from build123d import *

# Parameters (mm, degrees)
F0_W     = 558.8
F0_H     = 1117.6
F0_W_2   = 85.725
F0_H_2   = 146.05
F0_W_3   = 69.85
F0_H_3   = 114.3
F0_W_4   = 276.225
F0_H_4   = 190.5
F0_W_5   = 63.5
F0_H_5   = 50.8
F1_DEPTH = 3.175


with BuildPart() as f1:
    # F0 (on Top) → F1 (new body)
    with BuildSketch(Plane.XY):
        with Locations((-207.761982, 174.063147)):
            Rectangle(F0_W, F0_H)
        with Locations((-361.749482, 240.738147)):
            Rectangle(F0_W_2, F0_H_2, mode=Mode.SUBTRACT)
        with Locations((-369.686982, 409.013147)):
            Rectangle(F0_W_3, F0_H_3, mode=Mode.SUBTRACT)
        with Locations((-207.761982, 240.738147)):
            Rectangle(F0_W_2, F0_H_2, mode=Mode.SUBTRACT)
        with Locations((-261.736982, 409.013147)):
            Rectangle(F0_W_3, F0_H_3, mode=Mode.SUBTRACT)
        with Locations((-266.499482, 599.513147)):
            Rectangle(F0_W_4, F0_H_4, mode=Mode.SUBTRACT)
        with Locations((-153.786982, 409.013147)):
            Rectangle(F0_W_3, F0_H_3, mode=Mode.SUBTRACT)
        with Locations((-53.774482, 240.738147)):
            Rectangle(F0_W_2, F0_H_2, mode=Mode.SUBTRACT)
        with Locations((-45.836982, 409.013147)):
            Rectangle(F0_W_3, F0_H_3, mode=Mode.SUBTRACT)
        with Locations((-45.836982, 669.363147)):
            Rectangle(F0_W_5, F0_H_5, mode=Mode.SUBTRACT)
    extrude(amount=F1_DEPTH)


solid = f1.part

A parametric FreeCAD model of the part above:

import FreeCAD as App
import Part
import Sketcher

V = App.Vector
Q = App.Units.Quantity

doc = App.newDocument("Part")
body = doc.addObject("PartDesign::Body", "Body")

# Sketch on XY plane
sketch1 = doc.addObject("Sketcher::SketchObject", "Sketch")
body.addObject(sketch1)
sketch1.AttachmentSupport = (doc.XY_Plane, [""])
sketch1.MapMode = "FlatFace"
sketch1.addGeometry(Part.LineSegment(V(-487, 733, 0), V(-487, -385, 0)), False)
sketch1.addGeometry(Part.LineSegment(V(-487, -385, 0), V(72, -385, 0)), False)
sketch1.addGeometry(Part.LineSegment(V(72, -385, 0), V(72, 733, 0)), False)
sketch1.addGeometry(Part.LineSegment(V(72, 733, 0), V(-487, 733, 0)), False)
sketch1.addGeometry(Part.LineSegment(V(-319, 168, 0), V(-405, 168, 0)), False)
sketch1.addGeometry(Part.LineSegment(V(-405, 168, 0), V(-405, 314, 0)), False)
sketch1.addGeometry(Part.LineSegment(V(-405, 314, 0), V(-319, 314, 0)), False)
sketch1.addGeometry(Part.LineSegment(V(-319, 314, 0), V(-319, 168, 0)), False)
sketch1.addGeometry(Part.LineSegment(V(-335, 352, 0), V(-405, 352, 0)), False)
sketch1.addGeometry(Part.LineSegment(V(-405, 352, 0), V(-405, 466, 0)), False)
sketch1.addGeometry(Part.LineSegment(V(-405, 466, 0), V(-335, 466, 0)), False)
sketch1.addGeometry(Part.LineSegment(V(-335, 466, 0), V(-335, 352, 0)), False)
sketch1.addGeometry(Part.LineSegment(V(-227, 352, 0), V(-297, 352, 0)), False)
sketch1.addGeometry(Part.LineSegment(V(-297, 352, 0), V(-297, 466, 0)), False)
sketch1.addGeometry(Part.LineSegment(V(-297, 466, 0), V(-227, 466, 0)), False)
sketch1.addGeometry(Part.LineSegment(V(-227, 466, 0), V(-227, 352, 0)), False)
sketch1.addGeometry(Part.LineSegment(V(-165, 168, 0), V(-251, 168, 0)), False)
sketch1.addGeometry(Part.LineSegment(V(-251, 168, 0), V(-251, 314, 0)), False)
sketch1.addGeometry(Part.LineSegment(V(-251, 314, 0), V(-165, 314, 0)), False)
sketch1.addGeometry(Part.LineSegment(V(-165, 314, 0), V(-165, 168, 0)), False)
sketch1.addGeometry(Part.LineSegment(V(-11, 168, 0), V(-97, 168, 0)), False)
sketch1.addGeometry(Part.LineSegment(V(-97, 168, 0), V(-97, 314, 0)), False)
sketch1.addGeometry(Part.LineSegment(V(-97, 314, 0), V(-11, 314, 0)), False)
sketch1.addGeometry(Part.LineSegment(V(-11, 314, 0), V(-11, 168, 0)), False)
sketch1.addGeometry(Part.LineSegment(V(-119, 352, 0), V(-189, 352, 0)), False)
sketch1.addGeometry(Part.LineSegment(V(-189, 352, 0), V(-189, 466, 0)), False)
sketch1.addGeometry(Part.LineSegment(V(-189, 466, 0), V(-119, 466, 0)), False)
sketch1.addGeometry(Part.LineSegment(V(-119, 466, 0), V(-119, 352, 0)), False)
sketch1.addGeometry(Part.LineSegment(V(-11, 352, 0), V(-81, 352, 0)), False)
sketch1.addGeometry(Part.LineSegment(V(-81, 352, 0), V(-81, 466, 0)), False)
sketch1.addGeometry(Part.LineSegment(V(-81, 466, 0), V(-11, 466, 0)), False)
sketch1.addGeometry(Part.LineSegment(V(-11, 466, 0), V(-11, 352, 0)), False)
sketch1.addGeometry(Part.LineSegment(V(-128, 504, 0), V(-405, 504, 0)), False)
sketch1.addGeometry(Part.LineSegment(V(-405, 504, 0), V(-405, 695, 0)), False)
sketch1.addGeometry(Part.LineSegment(V(-405, 695, 0), V(-128, 695, 0)), False)
sketch1.addGeometry(Part.LineSegment(V(-128, 695, 0), V(-128, 504, 0)), False)
sketch1.addGeometry(Part.LineSegment(V(-14, 644, 0), V(-78, 644, 0)), False)
sketch1.addGeometry(Part.LineSegment(V(-78, 644, 0), V(-78, 695, 0)), False)
sketch1.addGeometry(Part.LineSegment(V(-78, 695, 0), V(-14, 695, 0)), False)
sketch1.addGeometry(Part.LineSegment(V(-14, 695, 0), V(-14, 644, 0)), False)
sketch1.addConstraint(Sketcher.Constraint("Coincident", 0, 2, 1, 1))
sketch1.addConstraint(Sketcher.Constraint("Coincident", 1, 2, 2, 1))
sketch1.addConstraint(Sketcher.Constraint("Coincident", 2, 2, 3, 1))
sketch1.addConstraint(Sketcher.Constraint("Coincident", 3, 2, 0, 1))
sketch1.addConstraint(Sketcher.Constraint("Coincident", 4, 2, 5, 1))
sketch1.addConstraint(Sketcher.Constraint("Coincident", 5, 2, 6, 1))
sketch1.addConstraint(Sketcher.Constraint("Coincident", 6, 2, 7, 1))
sketch1.addConstraint(Sketcher.Constraint("Coincident", 7, 2, 4, 1))
sketch1.addConstraint(Sketcher.Constraint("Coincident", 8, 2, 9, 1))
sketch1.addConstraint(Sketcher.Constraint("Coincident", 9, 2, 10, 1))
sketch1.addConstraint(Sketcher.Constraint("Coincident", 10, 2, 11, 1))
sketch1.addConstraint(Sketcher.Constraint("Coincident", 11, 2, 8, 1))
sketch1.addConstraint(Sketcher.Constraint("Coincident", 12, 2, 13, 1))
sketch1.addConstraint(Sketcher.Constraint("Coincident", 13, 2, 14, 1))
sketch1.addConstraint(Sketcher.Constraint("Coincident", 14, 2, 15, 1))
sketch1.addConstraint(Sketcher.Constraint("Coincident", 15, 2, 12, 1))
sketch1.addConstraint(Sketcher.Constraint("Coincident", 16, 2, 17, 1))
sketch1.addConstraint(Sketcher.Constraint("Coincident", 17, 2, 18, 1))
sketch1.addConstraint(Sketcher.Constraint("Coincident", 18, 2, 19, 1))
sketch1.addConstraint(Sketcher.Constraint("Coincident", 19, 2, 16, 1))
sketch1.addConstraint(Sketcher.Constraint("Coincident", 20, 2, 21, 1))
sketch1.addConstraint(Sketcher.Constraint("Coincident", 21, 2, 22, 1))
sketch1.addConstraint(Sketcher.Constraint("Coincident", 22, 2, 23, 1))
sketch1.addConstraint(Sketcher.Constraint("Coincident", 23, 2, 20, 1))
sketch1.addConstraint(Sketcher.Constraint("Coincident", 24, 2, 25, 1))
sketch1.addConstraint(Sketcher.Constraint("Coincident", 25, 2, 26, 1))
sketch1.addConstraint(Sketcher.Constraint("Coincident", 26, 2, 27, 1))
sketch1.addConstraint(Sketcher.Constraint("Coincident", 27, 2, 24, 1))
sketch1.addConstraint(Sketcher.Constraint("Coincident", 28, 2, 29, 1))
sketch1.addConstraint(Sketcher.Constraint("Coincident", 29, 2, 30, 1))
sketch1.addConstraint(Sketcher.Constraint("Coincident", 30, 2, 31, 1))
sketch1.addConstraint(Sketcher.Constraint("Coincident", 31, 2, 28, 1))
sketch1.addConstraint(Sketcher.Constraint("Coincident", 32, 2, 33, 1))
sketch1.addConstraint(Sketcher.Constraint("Coincident", 33, 2, 34, 1))
sketch1.addConstraint(Sketcher.Constraint("Coincident", 34, 2, 35, 1))
sketch1.addConstraint(Sketcher.Constraint("Coincident", 35, 2, 32, 1))
sketch1.addConstraint(Sketcher.Constraint("Coincident", 36, 2, 37, 1))
sketch1.addConstraint(Sketcher.Constraint("Coincident", 37, 2, 38, 1))
sketch1.addConstraint(Sketcher.Constraint("Coincident", 38, 2, 39, 1))
sketch1.addConstraint(Sketcher.Constraint("Coincident", 39, 2, 36, 1))
sketch1.addConstraint(Sketcher.Constraint("Vertical", 0))
sketch1.addConstraint(Sketcher.Constraint("Horizontal", 1))
sketch1.addConstraint(Sketcher.Constraint("Vertical", 2))
sketch1.addConstraint(Sketcher.Constraint("Horizontal", 3))
sketch1.addConstraint(Sketcher.Constraint("Horizontal", 4))
sketch1.addConstraint(Sketcher.Constraint("Vertical", 5))
sketch1.addConstraint(Sketcher.Constraint("Horizontal", 6))
sketch1.addConstraint(Sketcher.Constraint("Vertical", 7))
sketch1.addConstraint(Sketcher.Constraint("Horizontal", 8))
sketch1.addConstraint(Sketcher.Constraint("Vertical", 9))
sketch1.addConstraint(Sketcher.Constraint("Horizontal", 10))
sketch1.addConstraint(Sketcher.Constraint("Vertical", 11))
sketch1.addConstraint(Sketcher.Constraint("Horizontal", 12))
sketch1.addConstraint(Sketcher.Constraint("Vertical", 13))
sketch1.addConstraint(Sketcher.Constraint("Horizontal", 14))
sketch1.addConstraint(Sketcher.Constraint("Vertical", 15))
sketch1.addConstraint(Sketcher.Constraint("Horizontal", 16))
sketch1.addConstraint(Sketcher.Constraint("Vertical", 17))
sketch1.addConstraint(Sketcher.Constraint("Horizontal", 18))
sketch1.addConstraint(Sketcher.Constraint("Vertical", 19))
sketch1.addConstraint(Sketcher.Constraint("Horizontal", 20))
sketch1.addConstraint(Sketcher.Constraint("Vertical", 21))
sketch1.addConstraint(Sketcher.Constraint("Horizontal", 22))
sketch1.addConstraint(Sketcher.Constraint("Vertical", 23))
sketch1.addConstraint(Sketcher.Constraint("Horizontal", 24))
sketch1.addConstraint(Sketcher.Constraint("Vertical", 25))
sketch1.addConstraint(Sketcher.Constraint("Horizontal", 26))
sketch1.addConstraint(Sketcher.Constraint("Vertical", 27))
sketch1.addConstraint(Sketcher.Constraint("Horizontal", 28))
sketch1.addConstraint(Sketcher.Constraint("Vertical", 29))
sketch1.addConstraint(Sketcher.Constraint("Horizontal", 30))
sketch1.addConstraint(Sketcher.Constraint("Vertical", 31))
sketch1.addConstraint(Sketcher.Constraint("Horizontal", 32))
sketch1.addConstraint(Sketcher.Constraint("Vertical", 33))
sketch1.addConstraint(Sketcher.Constraint("Horizontal", 34))
sketch1.addConstraint(Sketcher.Constraint("Vertical", 35))
sketch1.addConstraint(Sketcher.Constraint("Horizontal", 36))
sketch1.addConstraint(Sketcher.Constraint("Vertical", 37))
sketch1.addConstraint(Sketcher.Constraint("Horizontal", 38))
sketch1.addConstraint(Sketcher.Constraint("Vertical", 39))
sketch1.addConstraint(Sketcher.Constraint("Horizontal", 11, 2, 12, 2))
sketch1.addConstraint(Sketcher.Constraint("Horizontal", 10, 2, 13, 2))
sketch1.addConstraint(Sketcher.Constraint("Horizontal", 7, 2, 16, 2))
sketch1.addConstraint(Sketcher.Constraint("Horizontal", 6, 2, 17, 2))
sketch1.addConstraint(Sketcher.Constraint("Horizontal", 19, 2, 20, 2))
sketch1.addConstraint(Sketcher.Constraint("Horizontal", 18, 2, 21, 2))
sketch1.addConstraint(Sketcher.Constraint("Horizontal", 15, 2, 24, 2))
sketch1.addConstraint(Sketcher.Constraint("Horizontal", 14, 2, 25, 2))
sketch1.addConstraint(Sketcher.Constraint("Horizontal", 27, 2, 28, 2))
sketch1.addConstraint(Sketcher.Constraint("Horizontal", 26, 2, 29, 2))
sketch1.addConstraint(Sketcher.Constraint("Horizontal", 34, 2, 37, 2))
sketch1.addConstraint(Sketcher.Constraint("Vertical", 5, 2, 8, 2))
sketch1.addConstraint(Sketcher.Constraint("Vertical", 23, 2, 30, 2))
sketch1.addConstraint(Sketcher.Constraint("Vertical", 9, 2, 32, 2))
sketch1.addConstraint(Sketcher.Constraint("Equal", 10, 12))
sketch1.addConstraint(Sketcher.Constraint("Equal", 6, 16))
sketch1.addConstraint(Sketcher.Constraint("Equal", 18, 20))
sketch1.addConstraint(Sketcher.Constraint("Equal", 14, 24))
sketch1.addConstraint(Sketcher.Constraint("Equal", 26, 28))
sketch1.addConstraint(Sketcher.Constraint("DistanceX", 1, 1, 1, 2, Q("22 in")))
sketch1.addConstraint(Sketcher.Constraint("DistanceY", 0, 2, 0, 1, Q("44 in")))
sketch1.addConstraint(Sketcher.Constraint("DistanceY", 37, 1, 37, 2, Q("2 in")))
sketch1.addConstraint(Sketcher.Constraint("DistanceX", 36, 2, 36, 1, Q("2.5 in")))
sketch1.addConstraint(Sketcher.Constraint("DistanceY", 9, 1, 9, 2, Q("4.5 in")))
sketch1.addConstraint(Sketcher.Constraint("DistanceY", 33, 1, 33, 2, Q("7.5 in")))
sketch1.addConstraint(Sketcher.Constraint("DistanceY", 8, 2, 3, 2, Q("15 in")))
sketch1.addConstraint(Sketcher.Constraint("DistanceY", 5, 2, 9, 2, Q("6 in")))
sketch1.addConstraint(Sketcher.Constraint("DistanceX", 9, 2, 14, 2, Q("7 in")))
sketch1.addConstraint(Sketcher.Constraint("DistanceY", 8, 2, 32, 2, Q("6 in")))
sketch1.addConstraint(Sketcher.Constraint("DistanceX", 34, 2, 36, 2, Q("2 in")))
sketch1.addConstraint(Sketcher.Constraint("DistanceX", 8, 2, 8, 1, Q("2.75 in")))
sketch1.addConstraint(Sketcher.Constraint("DistanceY", 5, 1, 5, 2, Q("5.75 in")))
sketch1.addConstraint(Sketcher.Constraint("DistanceX", 15, 2, 22, 2, Q("8.5 in")))
sketch1.addConstraint(Sketcher.Constraint("DistanceX", 15, 2, 24, 2, Q("1.5 in")))
sketch1.addConstraint(Sketcher.Constraint("DistanceX", 4, 2, 4, 1, Q("3.375 in")))
sketch1.addConstraint(Sketcher.Constraint("DistanceX", 32, 2, 32, 1, Q("10.875 in")))
sketch1.addConstraint(Sketcher.Constraint("DistanceX", 0, 2, 4, 2, Q("3.25 in")))
sketch1.addConstraint(Sketcher.Constraint("DistanceX", 7, 2, 16, 2, Q("2.6875 in")))
sketch1.addConstraint(Sketcher.Constraint("DistanceX", 0, 2, -1, 1, 487.161982))
sketch1.addConstraint(Sketcher.Constraint("DistanceY", 0, 2, -1, 1, 384.736853))
pad1 = doc.addObject("PartDesign::Pad", "Pad")
body.addObject(pad1)
pad1.Profile = sketch1
pad1.Length = Q("0.125 in")

doc.recompute()
